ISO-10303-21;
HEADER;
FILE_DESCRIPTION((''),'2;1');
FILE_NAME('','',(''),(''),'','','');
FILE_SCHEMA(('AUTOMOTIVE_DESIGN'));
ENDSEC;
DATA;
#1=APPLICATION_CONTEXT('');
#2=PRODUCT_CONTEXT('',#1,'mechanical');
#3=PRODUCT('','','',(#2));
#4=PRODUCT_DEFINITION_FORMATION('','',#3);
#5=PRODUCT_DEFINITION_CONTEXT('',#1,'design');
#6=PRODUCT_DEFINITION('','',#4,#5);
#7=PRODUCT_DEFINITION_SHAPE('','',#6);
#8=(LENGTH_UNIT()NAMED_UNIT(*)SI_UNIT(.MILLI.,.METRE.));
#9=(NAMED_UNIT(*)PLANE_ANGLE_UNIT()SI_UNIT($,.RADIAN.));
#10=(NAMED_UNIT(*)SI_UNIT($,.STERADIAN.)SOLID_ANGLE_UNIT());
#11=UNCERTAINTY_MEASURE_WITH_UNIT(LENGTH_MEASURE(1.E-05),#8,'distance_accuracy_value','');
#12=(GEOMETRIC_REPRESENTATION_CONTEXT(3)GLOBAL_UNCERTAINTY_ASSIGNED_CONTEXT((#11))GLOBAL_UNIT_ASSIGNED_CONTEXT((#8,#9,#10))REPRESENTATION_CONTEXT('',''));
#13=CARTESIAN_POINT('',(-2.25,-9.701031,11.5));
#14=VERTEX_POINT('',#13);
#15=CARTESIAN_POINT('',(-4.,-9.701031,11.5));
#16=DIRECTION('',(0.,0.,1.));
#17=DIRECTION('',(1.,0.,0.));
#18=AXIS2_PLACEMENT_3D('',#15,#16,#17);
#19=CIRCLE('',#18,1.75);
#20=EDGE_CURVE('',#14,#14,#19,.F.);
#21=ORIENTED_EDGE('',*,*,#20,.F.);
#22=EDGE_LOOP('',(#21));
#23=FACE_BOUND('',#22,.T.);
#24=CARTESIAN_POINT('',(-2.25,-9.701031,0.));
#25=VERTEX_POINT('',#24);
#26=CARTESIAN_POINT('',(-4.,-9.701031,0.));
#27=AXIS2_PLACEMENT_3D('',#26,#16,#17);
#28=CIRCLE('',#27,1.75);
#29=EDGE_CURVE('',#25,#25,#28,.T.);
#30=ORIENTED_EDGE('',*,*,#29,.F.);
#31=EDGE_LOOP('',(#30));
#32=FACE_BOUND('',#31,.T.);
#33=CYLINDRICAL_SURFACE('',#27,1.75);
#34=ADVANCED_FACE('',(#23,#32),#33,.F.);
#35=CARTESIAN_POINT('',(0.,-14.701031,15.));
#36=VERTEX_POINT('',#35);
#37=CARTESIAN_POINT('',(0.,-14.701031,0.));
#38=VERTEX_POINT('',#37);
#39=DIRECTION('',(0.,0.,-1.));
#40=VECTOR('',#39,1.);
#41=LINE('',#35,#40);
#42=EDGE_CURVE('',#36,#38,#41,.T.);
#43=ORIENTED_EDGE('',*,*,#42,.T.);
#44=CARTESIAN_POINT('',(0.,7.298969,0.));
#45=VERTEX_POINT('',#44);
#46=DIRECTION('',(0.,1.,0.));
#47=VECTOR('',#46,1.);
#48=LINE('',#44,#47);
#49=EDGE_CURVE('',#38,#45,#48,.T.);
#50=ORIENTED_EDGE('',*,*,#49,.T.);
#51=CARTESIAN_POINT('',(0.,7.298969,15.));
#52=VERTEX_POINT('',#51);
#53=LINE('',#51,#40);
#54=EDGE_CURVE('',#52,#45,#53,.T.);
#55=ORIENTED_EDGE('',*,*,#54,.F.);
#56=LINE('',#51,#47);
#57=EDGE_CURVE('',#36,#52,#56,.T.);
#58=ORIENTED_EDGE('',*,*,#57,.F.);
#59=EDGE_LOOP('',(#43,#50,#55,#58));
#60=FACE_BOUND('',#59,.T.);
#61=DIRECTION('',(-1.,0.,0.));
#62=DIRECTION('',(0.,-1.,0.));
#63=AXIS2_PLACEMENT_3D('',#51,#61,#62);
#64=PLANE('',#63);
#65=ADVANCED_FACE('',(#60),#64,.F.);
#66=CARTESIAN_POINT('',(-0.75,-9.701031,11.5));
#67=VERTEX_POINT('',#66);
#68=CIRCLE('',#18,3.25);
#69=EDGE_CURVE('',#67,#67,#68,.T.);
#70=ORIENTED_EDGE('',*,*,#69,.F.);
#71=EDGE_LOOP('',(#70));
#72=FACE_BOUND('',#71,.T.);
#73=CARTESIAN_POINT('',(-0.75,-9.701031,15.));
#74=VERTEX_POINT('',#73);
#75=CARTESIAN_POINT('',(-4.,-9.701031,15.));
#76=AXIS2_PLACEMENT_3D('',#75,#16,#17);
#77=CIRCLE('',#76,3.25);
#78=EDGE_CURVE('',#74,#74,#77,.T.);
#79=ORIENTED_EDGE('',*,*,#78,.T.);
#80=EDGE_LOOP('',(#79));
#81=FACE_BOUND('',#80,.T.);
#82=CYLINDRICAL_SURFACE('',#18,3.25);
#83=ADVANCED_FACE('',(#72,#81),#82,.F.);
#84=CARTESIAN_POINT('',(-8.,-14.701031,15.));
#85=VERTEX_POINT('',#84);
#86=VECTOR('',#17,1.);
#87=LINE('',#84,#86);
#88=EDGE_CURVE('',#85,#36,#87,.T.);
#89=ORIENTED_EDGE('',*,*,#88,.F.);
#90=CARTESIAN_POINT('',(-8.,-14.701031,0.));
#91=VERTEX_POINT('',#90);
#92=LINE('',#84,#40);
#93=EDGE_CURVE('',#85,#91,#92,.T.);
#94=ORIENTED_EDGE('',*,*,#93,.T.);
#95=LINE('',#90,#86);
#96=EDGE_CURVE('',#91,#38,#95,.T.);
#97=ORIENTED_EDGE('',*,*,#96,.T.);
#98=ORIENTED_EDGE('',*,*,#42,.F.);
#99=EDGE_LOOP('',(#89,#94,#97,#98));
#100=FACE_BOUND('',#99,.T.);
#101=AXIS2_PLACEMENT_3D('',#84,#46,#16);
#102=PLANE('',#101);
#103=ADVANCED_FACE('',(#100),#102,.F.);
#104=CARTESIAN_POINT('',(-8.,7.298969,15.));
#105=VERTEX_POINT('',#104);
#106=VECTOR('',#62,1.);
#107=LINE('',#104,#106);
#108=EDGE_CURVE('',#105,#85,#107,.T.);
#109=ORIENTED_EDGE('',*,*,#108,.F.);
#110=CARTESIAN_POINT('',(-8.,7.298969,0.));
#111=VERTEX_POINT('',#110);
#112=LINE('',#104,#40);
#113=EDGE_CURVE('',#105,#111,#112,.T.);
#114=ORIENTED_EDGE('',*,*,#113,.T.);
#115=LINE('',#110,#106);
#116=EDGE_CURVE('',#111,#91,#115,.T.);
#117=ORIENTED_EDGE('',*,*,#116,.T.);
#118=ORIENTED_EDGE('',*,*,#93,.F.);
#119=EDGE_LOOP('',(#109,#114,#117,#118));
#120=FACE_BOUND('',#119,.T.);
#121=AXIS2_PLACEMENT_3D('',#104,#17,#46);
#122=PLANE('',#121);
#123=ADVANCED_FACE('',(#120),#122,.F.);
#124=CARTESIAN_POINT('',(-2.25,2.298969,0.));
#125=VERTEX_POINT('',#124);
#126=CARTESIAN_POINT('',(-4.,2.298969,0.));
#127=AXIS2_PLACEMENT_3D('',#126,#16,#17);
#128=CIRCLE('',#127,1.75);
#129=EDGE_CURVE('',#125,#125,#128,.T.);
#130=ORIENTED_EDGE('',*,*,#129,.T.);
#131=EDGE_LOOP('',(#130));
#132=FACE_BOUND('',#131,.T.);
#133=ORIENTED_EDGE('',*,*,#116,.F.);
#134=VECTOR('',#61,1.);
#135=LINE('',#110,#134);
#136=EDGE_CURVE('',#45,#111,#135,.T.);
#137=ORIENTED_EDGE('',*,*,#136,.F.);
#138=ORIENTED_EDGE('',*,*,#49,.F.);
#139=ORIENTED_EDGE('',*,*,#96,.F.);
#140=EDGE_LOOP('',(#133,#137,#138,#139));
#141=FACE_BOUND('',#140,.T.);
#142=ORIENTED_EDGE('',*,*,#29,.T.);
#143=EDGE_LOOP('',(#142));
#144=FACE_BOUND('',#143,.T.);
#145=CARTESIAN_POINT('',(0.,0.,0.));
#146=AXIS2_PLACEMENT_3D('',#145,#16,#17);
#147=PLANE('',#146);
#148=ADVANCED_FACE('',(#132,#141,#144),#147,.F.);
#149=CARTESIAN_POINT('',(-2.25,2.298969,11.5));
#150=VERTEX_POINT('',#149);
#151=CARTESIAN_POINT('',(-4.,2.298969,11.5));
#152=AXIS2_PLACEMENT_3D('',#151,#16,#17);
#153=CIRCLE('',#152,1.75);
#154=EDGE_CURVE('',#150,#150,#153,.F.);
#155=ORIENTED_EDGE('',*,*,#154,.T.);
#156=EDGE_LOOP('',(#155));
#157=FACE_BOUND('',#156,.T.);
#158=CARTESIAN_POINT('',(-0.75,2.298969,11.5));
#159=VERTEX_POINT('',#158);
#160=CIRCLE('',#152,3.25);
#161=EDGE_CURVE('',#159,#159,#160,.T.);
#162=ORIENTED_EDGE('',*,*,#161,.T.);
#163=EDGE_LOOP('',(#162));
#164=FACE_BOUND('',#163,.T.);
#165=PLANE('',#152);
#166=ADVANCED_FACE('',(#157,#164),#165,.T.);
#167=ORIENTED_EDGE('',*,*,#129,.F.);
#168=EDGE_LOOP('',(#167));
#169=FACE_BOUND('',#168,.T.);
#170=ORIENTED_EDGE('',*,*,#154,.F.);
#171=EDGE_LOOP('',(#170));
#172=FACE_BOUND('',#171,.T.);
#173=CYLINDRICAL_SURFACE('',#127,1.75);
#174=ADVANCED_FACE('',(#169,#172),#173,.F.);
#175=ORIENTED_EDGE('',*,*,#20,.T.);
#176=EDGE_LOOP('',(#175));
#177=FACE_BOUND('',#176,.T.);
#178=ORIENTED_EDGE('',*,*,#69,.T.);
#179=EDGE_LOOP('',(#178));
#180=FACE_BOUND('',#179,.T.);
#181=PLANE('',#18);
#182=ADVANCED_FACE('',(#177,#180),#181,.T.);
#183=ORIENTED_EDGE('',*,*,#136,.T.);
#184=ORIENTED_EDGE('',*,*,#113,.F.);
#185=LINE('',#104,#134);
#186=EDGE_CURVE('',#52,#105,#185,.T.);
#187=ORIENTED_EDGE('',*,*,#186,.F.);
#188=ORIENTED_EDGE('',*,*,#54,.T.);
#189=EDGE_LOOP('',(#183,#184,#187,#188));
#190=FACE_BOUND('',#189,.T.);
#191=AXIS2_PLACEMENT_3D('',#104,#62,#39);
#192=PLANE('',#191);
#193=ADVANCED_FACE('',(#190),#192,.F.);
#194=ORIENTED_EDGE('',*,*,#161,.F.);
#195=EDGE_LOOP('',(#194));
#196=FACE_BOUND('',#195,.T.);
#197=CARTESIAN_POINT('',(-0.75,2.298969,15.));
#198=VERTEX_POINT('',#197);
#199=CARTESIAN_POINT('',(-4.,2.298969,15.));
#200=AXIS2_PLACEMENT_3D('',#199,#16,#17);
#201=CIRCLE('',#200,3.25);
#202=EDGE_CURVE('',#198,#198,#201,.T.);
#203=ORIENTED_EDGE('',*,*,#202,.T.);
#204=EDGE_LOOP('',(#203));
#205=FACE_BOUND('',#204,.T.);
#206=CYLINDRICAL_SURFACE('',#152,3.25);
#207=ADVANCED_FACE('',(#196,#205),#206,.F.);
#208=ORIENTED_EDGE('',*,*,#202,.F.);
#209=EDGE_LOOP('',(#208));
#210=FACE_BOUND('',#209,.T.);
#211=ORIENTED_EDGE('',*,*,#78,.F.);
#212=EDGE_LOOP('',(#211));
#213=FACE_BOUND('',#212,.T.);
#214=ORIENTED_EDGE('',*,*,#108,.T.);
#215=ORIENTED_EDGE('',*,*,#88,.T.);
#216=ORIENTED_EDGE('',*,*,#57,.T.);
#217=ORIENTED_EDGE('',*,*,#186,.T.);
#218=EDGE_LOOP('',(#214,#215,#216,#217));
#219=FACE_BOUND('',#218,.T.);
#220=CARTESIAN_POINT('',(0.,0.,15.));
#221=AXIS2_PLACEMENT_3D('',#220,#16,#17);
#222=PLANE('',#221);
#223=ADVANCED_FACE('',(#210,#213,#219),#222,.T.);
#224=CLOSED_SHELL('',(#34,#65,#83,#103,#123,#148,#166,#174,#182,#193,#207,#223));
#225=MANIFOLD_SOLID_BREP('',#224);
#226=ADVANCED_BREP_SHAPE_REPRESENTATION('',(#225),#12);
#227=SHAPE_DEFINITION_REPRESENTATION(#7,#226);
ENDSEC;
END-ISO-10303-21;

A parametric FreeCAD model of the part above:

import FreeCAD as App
import Part
import Sketcher
from FreeCAD import Vector
Q = App.Units.Quantity


def add_polygon(sketch, points):
    """Adds a closed chain of lines whose ends are joined by coincident constraints."""
    first, n = sketch.GeometryCount, len(points)
    for a, b in zip(points, points[1:] + points[:1]):
        sketch.addGeometry(Part.LineSegment(App.Vector(*a, 0), App.Vector(*b, 0)), False)
    for i in range(n):
        sketch.addConstraint(Sketcher.Constraint("Coincident", first + i, 2, first + (i + 1) % n, 1))

doc = App.newDocument("Part")
body = doc.addObject("PartDesign::Body", "Body")

# Sketch on XY plane
sketch1 = body.newObject("Sketcher::SketchObject", "Sketch")
sketch1.AttachmentSupport = (doc.getObject("XY_Plane"), [""])
sketch1.MapMode = "FlatFace"
add_polygon(sketch1, [(-8, 7.298969), (-8, -14.701031), (0, -14.701031), (0, 7.298969)])  # lines 0-3
sketch1.addConstraint([
    Sketcher.Constraint("Vertical", 0),
    Sketcher.Constraint("Horizontal", 1),
    Sketcher.Constraint("Vertical", 2),
    Sketcher.Constraint("Horizontal", 3),
    Sketcher.Constraint("PointOnObject", 1, 2, -2),
    Sketcher.Constraint("DistanceX", 1, 1, 1, 2, Q("8 mm")),
    Sketcher.Constraint("DistanceY", 0, 2, 0, 1, Q("22 mm")),
    Sketcher.Constraint("DistanceY", 0, 2, -1, 1, Q("14.701031 mm")),
])
pad1 = body.newObject("PartDesign::Pad", "Pad")
pad1.Profile = sketch1
pad1.Length = 15

# Sketch on XY plane
sketch2 = body.newObject("Sketcher::SketchObject", "Sketch001")
sketch2.AttachmentSupport = (doc.getObject("XY_Plane"), [""])
sketch2.MapMode = "FlatFace"
sketch2.AttachmentOffset = App.Placement(Vector(0, 0, 15), App.Rotation())
sketch2.addGeometry([
    Part.Circle(Vector(-4, 2.298969, 0), Vector(0, 0, 1), 1.75),
    Part.Circle(Vector(-4, -9.701031, 0), Vector(0, 0, 1), 1.75),
], False)
sketch2.addConstraint([
    Sketcher.Constraint("Equal", 0, 1),
    Sketcher.Constraint("Vertical", 0, 3, 1, 3),
    Sketcher.Constraint("Diameter", 0, Q("3.5 mm")),
    Sketcher.Constraint("DistanceX", 0, 3, -1, 1, Q("4 mm")),
    Sketcher.Constraint("DistanceY", 1, 3, 0, 3, Q("12 mm")),
    Sketcher.Constraint("DistanceY", -1, 1, 0, 3, Q("2.298969 mm")),
])
pocket1 = body.newObject("PartDesign::Pocket", "Pocket")
pocket1.Profile = sketch2
pocket1.Type = "ThroughAll"

# Sketch on XY plane
sketch3 = body.newObject("Sketcher::SketchObject", "Sketch002")
sketch3.AttachmentSupport = (doc.getObject("XY_Plane"), [""])
sketch3.MapMode = "FlatFace"
sketch3.AttachmentOffset = App.Placement(Vector(0, 0, 15), App.Rotation())
sketch3.addGeometry([
    Part.Circle(Vector(-4, 2.298969, 0), Vector(0, 0, 1), 3.25),
    Part.Circle(Vector(-4, -9.701031, 0), Vector(0, 0, 1), 3.25),
], False)
sketch3.addConstraint([
    Sketcher.Constraint("Equal", 0, 1),
    Sketcher.Constraint("Vertical", 0, 3, 1, 3),
    Sketcher.Constraint("Diameter", 0, Q("6.5 mm")),
    Sketcher.Constraint("DistanceX", 0, 3, -1, 1, Q("4 mm")),
    Sketcher.Constraint("DistanceY", 1, 3, 0, 3, Q("12 mm")),
    Sketcher.Constraint("DistanceY", -1, 1, 0, 3, Q("2.298969 mm")),
])
pocket2 = body.newObject("PartDesign::Pocket", "Pocket001")
pocket2.Profile = sketch3
pocket2.Length = 3.5

doc.recompute()
